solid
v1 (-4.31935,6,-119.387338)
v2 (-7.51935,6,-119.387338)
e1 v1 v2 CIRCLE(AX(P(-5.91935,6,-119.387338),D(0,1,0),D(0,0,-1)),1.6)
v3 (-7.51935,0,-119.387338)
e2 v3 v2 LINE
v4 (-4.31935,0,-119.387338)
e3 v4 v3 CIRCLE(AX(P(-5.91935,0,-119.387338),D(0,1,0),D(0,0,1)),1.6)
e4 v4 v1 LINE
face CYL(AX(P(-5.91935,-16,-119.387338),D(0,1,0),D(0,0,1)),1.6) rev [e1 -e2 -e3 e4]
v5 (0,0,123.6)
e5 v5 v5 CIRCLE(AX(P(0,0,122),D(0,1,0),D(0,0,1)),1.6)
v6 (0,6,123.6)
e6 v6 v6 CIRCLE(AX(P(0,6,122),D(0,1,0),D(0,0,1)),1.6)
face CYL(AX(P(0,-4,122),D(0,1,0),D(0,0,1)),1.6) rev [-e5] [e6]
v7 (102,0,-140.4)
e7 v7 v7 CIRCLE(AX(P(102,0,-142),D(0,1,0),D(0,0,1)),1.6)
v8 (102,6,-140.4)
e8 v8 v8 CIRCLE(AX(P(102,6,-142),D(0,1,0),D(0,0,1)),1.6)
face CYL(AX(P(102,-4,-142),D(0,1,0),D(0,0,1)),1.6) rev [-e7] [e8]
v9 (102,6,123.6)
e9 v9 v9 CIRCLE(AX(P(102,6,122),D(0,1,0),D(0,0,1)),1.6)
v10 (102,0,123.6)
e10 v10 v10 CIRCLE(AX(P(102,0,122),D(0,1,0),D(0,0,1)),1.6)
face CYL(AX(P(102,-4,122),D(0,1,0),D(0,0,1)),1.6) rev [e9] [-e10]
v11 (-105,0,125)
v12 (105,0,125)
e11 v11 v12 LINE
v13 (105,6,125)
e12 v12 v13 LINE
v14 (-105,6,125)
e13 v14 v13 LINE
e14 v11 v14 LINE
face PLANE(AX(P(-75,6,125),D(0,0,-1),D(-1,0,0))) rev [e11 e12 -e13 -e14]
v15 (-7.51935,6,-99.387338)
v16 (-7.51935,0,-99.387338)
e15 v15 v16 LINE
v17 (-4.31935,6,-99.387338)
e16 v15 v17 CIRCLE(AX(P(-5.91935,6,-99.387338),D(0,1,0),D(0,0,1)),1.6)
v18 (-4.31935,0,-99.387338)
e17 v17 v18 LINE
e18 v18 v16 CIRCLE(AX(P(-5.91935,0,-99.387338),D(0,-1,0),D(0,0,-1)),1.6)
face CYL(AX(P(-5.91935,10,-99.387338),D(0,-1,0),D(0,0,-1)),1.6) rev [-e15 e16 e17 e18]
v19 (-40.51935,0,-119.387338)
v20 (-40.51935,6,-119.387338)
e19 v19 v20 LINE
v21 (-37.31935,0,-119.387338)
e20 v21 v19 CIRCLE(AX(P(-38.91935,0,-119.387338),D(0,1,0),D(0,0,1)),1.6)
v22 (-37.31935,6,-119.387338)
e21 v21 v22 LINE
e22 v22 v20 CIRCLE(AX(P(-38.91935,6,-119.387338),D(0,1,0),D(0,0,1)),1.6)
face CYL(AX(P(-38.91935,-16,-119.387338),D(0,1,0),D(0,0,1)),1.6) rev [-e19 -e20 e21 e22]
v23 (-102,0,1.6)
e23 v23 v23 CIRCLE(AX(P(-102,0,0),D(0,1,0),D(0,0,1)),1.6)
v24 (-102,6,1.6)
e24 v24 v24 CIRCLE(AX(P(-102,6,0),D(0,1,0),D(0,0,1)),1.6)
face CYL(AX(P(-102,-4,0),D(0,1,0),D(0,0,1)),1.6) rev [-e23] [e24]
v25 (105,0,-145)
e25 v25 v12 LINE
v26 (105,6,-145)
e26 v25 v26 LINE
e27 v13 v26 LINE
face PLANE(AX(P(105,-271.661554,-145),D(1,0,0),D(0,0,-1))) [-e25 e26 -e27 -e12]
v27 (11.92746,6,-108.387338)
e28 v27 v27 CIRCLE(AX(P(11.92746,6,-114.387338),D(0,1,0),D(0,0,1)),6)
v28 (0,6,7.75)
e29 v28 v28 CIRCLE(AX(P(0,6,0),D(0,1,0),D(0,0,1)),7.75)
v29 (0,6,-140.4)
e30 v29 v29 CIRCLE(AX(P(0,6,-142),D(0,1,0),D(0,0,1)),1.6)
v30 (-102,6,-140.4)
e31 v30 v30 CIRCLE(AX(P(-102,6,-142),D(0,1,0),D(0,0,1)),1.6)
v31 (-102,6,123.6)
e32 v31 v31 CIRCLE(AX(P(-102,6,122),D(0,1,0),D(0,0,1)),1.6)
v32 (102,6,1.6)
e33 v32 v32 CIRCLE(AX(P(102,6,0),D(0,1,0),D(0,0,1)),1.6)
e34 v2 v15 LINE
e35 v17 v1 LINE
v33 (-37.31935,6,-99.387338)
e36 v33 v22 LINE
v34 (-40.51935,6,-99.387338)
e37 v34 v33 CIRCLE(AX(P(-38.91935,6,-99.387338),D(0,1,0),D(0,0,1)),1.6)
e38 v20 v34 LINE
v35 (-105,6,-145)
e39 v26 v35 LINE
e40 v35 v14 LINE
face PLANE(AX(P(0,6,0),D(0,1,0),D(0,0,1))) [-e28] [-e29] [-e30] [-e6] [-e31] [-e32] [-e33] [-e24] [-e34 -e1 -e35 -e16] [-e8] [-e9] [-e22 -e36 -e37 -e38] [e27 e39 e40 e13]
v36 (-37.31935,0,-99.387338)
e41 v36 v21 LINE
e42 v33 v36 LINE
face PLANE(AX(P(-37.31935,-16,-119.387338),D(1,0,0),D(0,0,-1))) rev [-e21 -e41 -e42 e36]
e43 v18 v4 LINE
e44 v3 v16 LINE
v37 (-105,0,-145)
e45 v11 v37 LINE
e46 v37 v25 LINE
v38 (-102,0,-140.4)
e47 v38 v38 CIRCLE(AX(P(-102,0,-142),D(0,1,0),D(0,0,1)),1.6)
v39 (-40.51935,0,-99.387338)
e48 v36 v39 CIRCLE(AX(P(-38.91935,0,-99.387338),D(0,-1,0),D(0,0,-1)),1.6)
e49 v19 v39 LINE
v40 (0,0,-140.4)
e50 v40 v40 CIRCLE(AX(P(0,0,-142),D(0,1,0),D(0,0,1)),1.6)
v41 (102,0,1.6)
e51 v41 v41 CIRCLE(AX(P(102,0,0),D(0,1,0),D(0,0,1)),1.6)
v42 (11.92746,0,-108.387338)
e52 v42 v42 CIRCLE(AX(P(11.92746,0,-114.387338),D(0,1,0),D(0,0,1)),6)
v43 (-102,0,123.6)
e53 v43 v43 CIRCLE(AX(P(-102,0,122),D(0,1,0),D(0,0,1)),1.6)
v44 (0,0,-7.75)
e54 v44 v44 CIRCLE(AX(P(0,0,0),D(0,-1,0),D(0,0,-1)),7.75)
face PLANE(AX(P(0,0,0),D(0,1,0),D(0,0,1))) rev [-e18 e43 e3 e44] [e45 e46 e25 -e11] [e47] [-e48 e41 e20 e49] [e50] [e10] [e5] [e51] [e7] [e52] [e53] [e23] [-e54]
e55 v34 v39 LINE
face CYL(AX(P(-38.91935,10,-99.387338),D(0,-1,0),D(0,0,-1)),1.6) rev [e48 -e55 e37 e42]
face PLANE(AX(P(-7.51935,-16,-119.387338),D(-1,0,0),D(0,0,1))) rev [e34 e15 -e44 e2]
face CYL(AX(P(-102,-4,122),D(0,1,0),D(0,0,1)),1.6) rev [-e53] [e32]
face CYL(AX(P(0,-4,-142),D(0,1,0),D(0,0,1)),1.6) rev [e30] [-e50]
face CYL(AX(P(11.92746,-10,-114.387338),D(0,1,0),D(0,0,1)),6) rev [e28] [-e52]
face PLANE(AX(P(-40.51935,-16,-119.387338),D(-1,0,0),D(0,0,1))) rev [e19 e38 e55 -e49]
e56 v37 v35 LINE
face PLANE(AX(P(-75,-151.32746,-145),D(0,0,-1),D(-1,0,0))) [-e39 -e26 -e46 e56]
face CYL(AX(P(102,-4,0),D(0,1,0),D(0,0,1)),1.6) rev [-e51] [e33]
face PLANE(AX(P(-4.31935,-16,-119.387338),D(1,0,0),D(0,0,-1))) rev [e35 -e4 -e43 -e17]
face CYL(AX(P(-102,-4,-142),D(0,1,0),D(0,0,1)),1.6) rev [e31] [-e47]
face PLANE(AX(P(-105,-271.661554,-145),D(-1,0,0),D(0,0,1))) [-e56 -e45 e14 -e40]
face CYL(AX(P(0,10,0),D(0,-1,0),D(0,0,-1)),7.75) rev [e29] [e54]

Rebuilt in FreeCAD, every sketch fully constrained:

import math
import FreeCAD as App
import Part
import Sketcher

doc = App.newDocument("Part")
body = doc.addObject("PartDesign::Body", "Body")

# Sketch on XZ plane
sketch1 = body.newObject("Sketcher::SketchObject", "Sketch")
sketch1.AttachmentSupport = (doc.getObject("XZ_Plane"), [""])
sketch1.MapMode = "FlatFace"
sketch1.addGeometry([
    Part.LineSegment(App.Vector(-75, -125, 0), App.Vector(-75, 125, 0)),  # 0
    Part.LineSegment(App.Vector(-75, 125, 0), App.Vector(75, 125, 0)),  # 1
    Part.LineSegment(App.Vector(75, 125, 0), App.Vector(75, -125, 0)),  # 2
    Part.LineSegment(App.Vector(75, -125, 0), App.Vector(-75, -125, 0)),  # 3
    Part.Circle(App.Vector(-9.9, 9.9, 0), App.Vector(0, 0, 1), 1.8),  # 4
    Part.Circle(App.Vector(9.9, 9.9, 0), App.Vector(0, 0, 1), 1.8),  # 5
    Part.Circle(App.Vector(-9.9, -9.9, 0), App.Vector(0, 0, 1), 1.8),  # 6
    Part.Circle(App.Vector(9.9, -9.9, 0), App.Vector(0, 0, 1), 1.8),  # 7
], False)
sketch1.addConstraint([
    Sketcher.Constraint("Coincident", 0, 2, 1, 1),
    Sketcher.Constraint("Coincident", 1, 2, 2, 1),
    Sketcher.Constraint("Coincident", 2, 2, 3, 1),
    Sketcher.Constraint("Coincident", 3, 2, 0, 1),
    Sketcher.Constraint("Vertical", 0),
    Sketcher.Constraint("Horizontal", 1),
    Sketcher.Constraint("Vertical", 2),
    Sketcher.Constraint("Horizontal", 3),
    Sketcher.Constraint("Equal", 4, 5),
    Sketcher.Constraint("Equal", 5, 6),
    Sketcher.Constraint("Equal", 6, 7),
    Sketcher.Constraint("Symmetric", 5, 3, 6, 3, -1, 1),
    Sketcher.Constraint("Symmetric", 4, 3, 7, 3, -1, 1),
    Sketcher.Constraint("Symmetric", 0, 2, 2, 2, -1, 1),
    Sketcher.Constraint("Symmetric", 4, 3, 5, 3, -2),
    Sketcher.Constraint("Diameter", 4, 3.5),
    Sketcher.Constraint("DistanceX", 1, 1, 1, 2, 150.0),
    Sketcher.Constraint("DistanceY", 0, 1, 0, 2, 250.0),
    Sketcher.Constraint("DistanceX", 4, 3, 5, 3, 19.79899),
    Sketcher.Constraint("DistanceY", 6, 3, 4, 3, 19.79899),
])
pad1 = body.newObject("PartDesign::Pad", "Pad")
pad1.Profile = sketch1
pad1.Length = 6
pad1.Reversed = True

# Sketch on XZ plane
sketch2 = body.newObject("Sketcher::SketchObject", "Sketch001")
sketch2.AttachmentSupport = (doc.getObject("XZ_Plane"), [""])
sketch2.MapMode = "FlatFace"
sketch2.AttachmentOffset = App.Placement(App.Vector(0, 0, -6), App.Rotation())
sketch2.addGeometry(Part.Circle(App.Vector(0, 0, 0), App.Vector(0, 0, 1), 11), False)
sketch2.addConstraint([
    Sketcher.Constraint("Coincident", 0, 3, -1, 1),
    Sketcher.Constraint("Diameter", 0, 22.5),
])
pocket1 = body.newObject("PartDesign::Pocket", "Pocket")
pocket1.Profile = sketch2
pocket1.Length = 6
pocket1.Reversed = True

# Sketch on XZ plane
sketch3 = body.newObject("Sketcher::SketchObject", "Sketch002")
sketch3.AttachmentSupport = (doc.getObject("XZ_Plane"), [""])
sketch3.MapMode = "FlatFace"
sketch3.AttachmentOffset = App.Placement(App.Vector(0, 0, -6), App.Rotation())
sketch3.addGeometry([
    Part.Circle(App.Vector(-9.9, -9.9, 0), App.Vector(0, 0, 1), 1.7),
    Part.Circle(App.Vector(9.9, -9.9, 0), App.Vector(0, 0, 1), 1.7),
    Part.Circle(App.Vector(-9.9, 9.9, 0), App.Vector(0, 0, 1), 1.7),
    Part.Circle(App.Vector(9.9, 9.9, 0), App.Vector(0, 0, 1), 1.7),
], False)
sketch3.addConstraint([
    Sketcher.Constraint("Equal", 0, 1),
    Sketcher.Constraint("Equal", 1, 2),
    Sketcher.Constraint("Equal", 2, 3),
    Sketcher.Constraint("Symmetric", 1, 3, 2, 3, -1, 1),
    Sketcher.Constraint("Symmetric", 0, 3, 3, 3, -1, 1),
    Sketcher.Constraint("Symmetric", 0, 3, 1, 3, -2),
    Sketcher.Constraint("Diameter", 0, 3.4),
    Sketcher.Constraint("DistanceX", 0, 3, 1, 3, 19.79899),
    Sketcher.Constraint("DistanceY", 0, 3, 2, 3, 19.79899),
])
doc.recompute()
hole = body.newObject("PartDesign::Hole", "Hole")
hole.Profile = sketch3
hole.ThreadType = "None"
hole.Diameter = 3.4
hole.DepthType = "ThroughAll"
hole.HoleCutType = "Countersink"
hole.HoleCutDiameter = 6.3
hole.HoleCutCountersinkAngle = 90
hole.Reversed = True

# Sketch on XZ plane
sketch4 = body.newObject("Sketcher::SketchObject", "Sketch003")
sketch4.AttachmentSupport = (doc.getObject("XZ_Plane"), [""])
sketch4.MapMode = "FlatFace"
sketch4.AttachmentOffset = App.Placement(App.Vector(0, 0, -6), App.Rotation())
sketch4.addGeometry([
    Part.LineSegment(App.Vector(-75, -145, 0), App.Vector(-75, -125, 0)),
    Part.LineSegment(App.Vector(-75, -125, 0), App.Vector(75, -125, 0)),
    Part.LineSegment(App.Vector(75, -125, 0), App.Vector(75, -145, 0)),
    Part.LineSegment(App.Vector(75, -145, 0), App.Vector(-75, -145, 0)),
], False)
sketch4.addConstraint([
    Sketcher.Constraint("Coincident", 0, 2, 1, 1),
    Sketcher.Constraint("Coincident", 1, 2, 2, 1),
    Sketcher.Constraint("Coincident", 2, 2, 3, 1),
    Sketcher.Constraint("Coincident", 3, 2, 0, 1),
    Sketcher.Constraint("Vertical", 0),
    Sketcher.Constraint("Horizontal", 1),
    Sketcher.Constraint("Vertical", 2),
    Sketcher.Constraint("Horizontal", 3),
    Sketcher.Constraint("DistanceX", 1, 1, 1, 2, 150.0),
    Sketcher.Constraint("DistanceY", 0, 1, 0, 2, 20.0),
    Sketcher.Constraint("DistanceX", 0, 2, -1, 1, 75.0),
    Sketcher.Constraint("DistanceY", 0, 2, -1, 1, 125.0),
])
pad2 = body.newObject("PartDesign::Pad", "Pad001")
pad2.Profile = sketch4
pad2.Length = 6

# Sketch on XZ plane
sketch5 = body.newObject("Sketcher::SketchObject", "Sketch004")
sketch5.AttachmentSupport = (doc.getObject("XZ_Plane"), [""])
sketch5.MapMode = "FlatFace"
sketch5.AttachmentOffset = App.Placement(App.Vector(0, 0, -6), App.Rotation())
sketch5.addGeometry([
    Part.LineSegment(App.Vector(-37.3, -109.4, 0), App.Vector(-37.3, -119.4, 0)),  # 0
    Part.ArcOfCircle(Part.Circle(App.Vector(-38.9, -119.4, 0), App.Vector(0, 0, 1), 1.6), math.radians(180), math.radians(360)),  # 1
    Part.LineSegment(App.Vector(-40.5, -119.4, 0), App.Vector(-40.5, -109.4, 0)),  # 2
    Part.ArcOfCircle(Part.Circle(App.Vector(-38.9, -109.4, 0), App.Vector(0, 0, 1), 1.6), math.radians(0), math.radians(180)),  # 3
    Part.LineSegment(App.Vector(-7.5, -119.4, 0), App.Vector(-7.5, -109.4, 0)),  # 4
    Part.ArcOfCircle(Part.Circle(App.Vector(-5.9, -109.4, 0), App.Vector(0, 0, 1), 1.6), math.radians(0), math.radians(180)),  # 5
    Part.LineSegment(App.Vector(-4.3, -109.4, 0), App.Vector(-4.3, -119.4, 0)),  # 6
    Part.ArcOfCircle(Part.Circle(App.Vector(-5.9, -119.4, 0), App.Vector(0, 0, 1), 1.6), math.radians(180), math.radians(360)),  # 7
], False)
sketch5.addConstraint([
    Sketcher.Constraint("Tangent", 0, 2, 1, 2),
    Sketcher.Constraint("Tangent", 1, 1, 2, 1),
    Sketcher.Constraint("Tangent", 2, 2, 3, 2),
    Sketcher.Constraint("Tangent", 3, 1, 0, 1),
    Sketcher.Constraint("Tangent", 4, 2, 5, 2),
    Sketcher.Constraint("Tangent", 5, 1, 6, 1),
    Sketcher.Constraint("Tangent", 6, 2, 7, 2),
    Sketcher.Constraint("Tangent", 7, 1, 4, 1),
    Sketcher.Constraint("Vertical", 0),
    Sketcher.Constraint("Vertical", 2),
    Sketcher.Constraint("Vertical", 4),
    Sketcher.Constraint("Vertical", 6),
    Sketcher.Constraint("Equal", 3, 5),
    Sketcher.Constraint("Horizontal", 3, 3, 5, 3),
    Sketcher.Constraint("Horizontal", 1, 3, 7, 3),
    Sketcher.Constraint("Radius", 1, 1.6),
    Sketcher.Constraint("DistanceY", 0, 2, 0, 1, 10.0),
    Sketcher.Constraint("DistanceX", 3, 3, 5, 3, 33.0),
    Sketcher.Constraint("DistanceX", 1, 3, -1, 1, 38.91935),
    Sketcher.Constraint("DistanceY", 1, 3, -1, 1, 119.387338),
])
pocket2 = body.newObject("PartDesign::Pocket", "Pocket001")
pocket2.Profile = sketch5
pocket2.Length = 22
pocket2.Reversed = True

# Sketch on XZ plane
sketch6 = body.newObject("Sketcher::SketchObject", "Sketch005")
sketch6.AttachmentSupport = (doc.getObject("XZ_Plane"), [""])
sketch6.MapMode = "FlatFace"
sketch6.AttachmentOffset = App.Placement(App.Vector(0, 0, -6), App.Rotation())
sketch6.addGeometry(Part.Circle(App.Vector(12, -114, 0), App.Vector(0, 0, 1), 6), False)
sketch6.addConstraint([
    Sketcher.Constraint("Diameter", 0, 12.0),
    Sketcher.Constraint("DistanceX", -1, 1, 0, 3, 11.92746),
    Sketcher.Constraint("DistanceY", 0, 3, -1, 1, 114.387338),
])
pocket3 = body.newObject("PartDesign::Pocket", "Pocket002")
pocket3.Profile = sketch6
pocket3.Length = 16
pocket3.Reversed = True

# Sketch on XZ plane
sketch7 = body.newObject("Sketcher::SketchObject", "Sketch006")
sketch7.AttachmentSupport = (doc.getObject("XZ_Plane"), [""])
sketch7.MapMode = "FlatFace"
sketch7.AttachmentOffset = App.Placement(App.Vector(0, 0, -6), App.Rotation())
sketch7.addGeometry([
    Part.LineSegment(App.Vector(-105, -145, 0), App.Vector(-105, 125, 0)),  # 0
    Part.LineSegment(App.Vector(-105, 125, 0), App.Vector(-75, 125, 0)),  # 1
    Part.LineSegment(App.Vector(-75, 125, 0), App.Vector(-75, -145, 0)),  # 2
    Part.LineSegment(App.Vector(-75, -145, 0), App.Vector(-105, -145, 0)),  # 3
    Part.LineSegment(App.Vector(75, -145, 0), App.Vector(75, 125, 0)),  # 4
    Part.LineSegment(App.Vector(75, 125, 0), App.Vector(105, 125, 0)),  # 5
    Part.LineSegment(App.Vector(105, 125, 0), App.Vector(105, -145, 0)),  # 6
    Part.LineSegment(App.Vector(105, -145, 0), App.Vector(75, -145, 0)),  # 7
], False)
sketch7.addConstraint([
    Sketcher.Constraint("Coincident", 0, 2, 1, 1),
    Sketcher.Constraint("Coincident", 1, 2, 2, 1),
    Sketcher.Constraint("Coincident", 2, 2, 3, 1),
    Sketcher.Constraint("Coincident", 3, 2, 0, 1),
    Sketcher.Constraint("Coincident", 4, 2, 5, 1),
    Sketcher.Constraint("Coincident", 5, 2, 6, 1),
    Sketcher.Constraint("Coincident", 6, 2, 7, 1),
    Sketcher.Constraint("Coincident", 7, 2, 4, 1),
    Sketcher.Constraint("Vertical", 0),
    Sketcher.Constraint("Horizontal", 1),
    Sketcher.Constraint("Vertical", 2),
    Sketcher.Constraint("Horizontal", 3),
    Sketcher.Constraint("Vertical", 4),
    Sketcher.Constraint("Horizontal", 5),
    Sketcher.Constraint("Vertical", 6),
    Sketcher.Constraint("Horizontal", 7),
    Sketcher.Constraint("Symmetric", 1, 2, 4, 2, -2),
    Sketcher.Constraint("Symmetric", 3, 2, 6, 2, -2),
    Sketcher.Constraint("DistanceX", 1, 1, 1, 2, 30.0),
    Sketcher.Constraint("DistanceY", 0, 1, 0, 2, 270.0),
    Sketcher.Constraint("DistanceX", 0, 2, -1, 1, 105.0),
    Sketcher.Constraint("DistanceY", -1, 1, 0, 2, 125.0),
])
pad3 = body.newObject("PartDesign::Pad", "Pad002")
pad3.Profile = sketch7
pad3.Length = 6

# Sketch on XZ plane
sketch8 = body.newObject("Sketcher::SketchObject", "Sketch007")
sketch8.AttachmentSupport = (doc.getObject("XZ_Plane"), [""])
sketch8.MapMode = "FlatFace"
sketch8.AttachmentOffset = App.Placement(App.Vector(0, 0, -6), App.Rotation())
sketch8.addGeometry([
    Part.Circle(App.Vector(-102, -142, 0), App.Vector(0, 0, 1), 1.6),  # 0
    Part.Circle(App.Vector(0, -142, 0), App.Vector(0, 0, 1), 1.6),  # 1
    Part.Circle(App.Vector(102, -142, 0), App.Vector(0, 0, 1), 1.6),  # 2
    Part.Circle(App.Vector(-102, 0, 0), App.Vector(0, 0, 1), 1.6),  # 3
    Part.Circle(App.Vector(102, 0, 0), App.Vector(0, 0, 1), 1.6),  # 4
    Part.Circle(App.Vector(-102, 122, 0), App.Vector(0, 0, 1), 1.6),  # 5
    Part.Circle(App.Vector(102, 122, 0), App.Vector(0, 0, 1), 1.6),  # 6
    Part.Circle(App.Vector(0, 122, 0), App.Vector(0, 0, 1), 1.6),  # 7
], False)
sketch8.addConstraint([
    Sketcher.Constraint("Equal", 0, 1),
    Sketcher.Constraint("Equal", 1, 2),
    Sketcher.Constraint("Equal", 2, 3),
    Sketcher.Constraint("Equal", 3, 4),
    Sketcher.Constraint("Equal", 4, 5),
    Sketcher.Constraint("Equal", 5, 6),
    Sketcher.Constraint("Equal", 6, 7),
    Sketcher.Constraint("Symmetric", 3, 3, 4, 3, -1, 1),
    Sketcher.Constraint("Symmetric", 0, 3, 2, 3, -2),
    Sketcher.Constraint("Symmetric", 5, 3, 6, 3, -2),
    Sketcher.Constraint("PointOnObject", 1, 3, -2),
    Sketcher.Constraint("PointOnObject", 3, 3, -1),
    Sketcher.Constraint("PointOnObject", 7, 3, -2),
    Sketcher.Constraint("Horizontal", 0, 3, 1, 3),
    Sketcher.Constraint("Horizontal", 6, 3, 7, 3),
    Sketcher.Constraint("Vertical", 0, 3, 3, 3),
    Sketcher.Constraint("Vertical", 3, 3, 5, 3),
    Sketcher.Constraint("Diameter", 0, 3.2),
    Sketcher.Constraint("DistanceX", 0, 3, -1, 1, 102.0),
    Sketcher.Constraint("DistanceY", 0, 3, -1, 1, 142.0),
    Sketcher.Constraint("DistanceY", -1, 1, 5, 3, 122.0),
])
pocket4 = body.newObject("PartDesign::Pocket", "Pocket003")
pocket4.Profile = sketch8
pocket4.Length = 10
pocket4.Reversed = True

# Sketch on XZ plane
sketch9 = body.newObject("Sketcher::SketchObject", "Sketch008")
sketch9.AttachmentSupport = (doc.getObject("XZ_Plane"), [""])
sketch9.MapMode = "FlatFace"
sketch9.AttachmentOffset = App.Placement(App.Vector(0, 0, -6), App.Rotation())
sketch9.addGeometry([
    Part.Circle(App.Vector(-15.5, -15.5, 0), App.Vector(0, 0, 1), 1.6),
    Part.Circle(App.Vector(-15.5, 15.5, 0), App.Vector(0, 0, 1), 1.6),
    Part.Circle(App.Vector(15.5, -15.5, 0), App.Vector(0, 0, 1), 1.6),
    Part.Circle(App.Vector(15.5, 15.5, 0), App.Vector(0, 0, 1), 1.6),
], False)
sketch9.addConstraint([
    Sketcher.Constraint("Equal", 0, 1),
    Sketcher.Constraint("Equal", 1, 2),
    Sketcher.Constraint("Equal", 2, 3),
    Sketcher.Constraint("Symmetric", 1, 3, 2, 3, -1, 1),
    Sketcher.Constraint("Symmetric", 0, 3, 3, 3, -1, 1),
    Sketcher.Constraint("Symmetric", 0, 3, 2, 3, -2),
    Sketcher.Constraint("Diameter", 0, 3.2),
    Sketcher.Constraint("DistanceY", 0, 3, 1, 3, 31.0),
    Sketcher.Constraint("DistanceX", 0, 3, 2, 3, 31.0),
])
pocket5 = body.newObject("PartDesign::Pocket", "Pocket004")
pocket5.Profile = sketch9
pocket5.Length = 10
pocket5.Reversed = True

# Sketch on XZ plane
sketch10 = body.newObject("Sketcher::SketchObject", "Sketch009")
sketch10.AttachmentSupport = (doc.getObject("XZ_Plane"), [""])
sketch10.MapMode = "FlatFace"
sketch10.AttachmentOffset = App.Placement(App.Vector(0, 0, -6), App.Rotation())
sketch10.addGeometry([
    Part.Circle(App.Vector(-15.5, -15.5, 0), App.Vector(0, 0, 1), 1.9),
    Part.Circle(App.Vector(-15.5, 15.5, 0), App.Vector(0, 0, 1), 1.9),
    Part.Circle(App.Vector(15.5, 15.5, 0), App.Vector(0, 0, 1), 1.9),
    Part.Circle(App.Vector(15.5, -15.5, 0), App.Vector(0, 0, 1), 1.9),
], False)
sketch10.addConstraint([
    Sketcher.Constraint("Equal", 0, 1),
    Sketcher.Constraint("Equal", 1, 2),
    Sketcher.Constraint("Equal", 2, 3),
    Sketcher.Constraint("Symmetric", 0, 3, 2, 3, -1, 1),
    Sketcher.Constraint("Symmetric", 1, 3, 3, 3, -1, 1),
    Sketcher.Constraint("Symmetric", 1, 3, 2, 3, -2),
    Sketcher.Constraint("Diameter", 0, 3.7),
    Sketcher.Constraint("DistanceY", 0, 3, 1, 3, 31.0),
    Sketcher.Constraint("DistanceX", 1, 3, 2, 3, 31.0),
])
doc.recompute()
hole2 = body.newObject("PartDesign::Hole", "Hole001")
hole2.Profile = sketch10
hole2.ThreadType = "None"
hole2.Diameter = 3.7
hole2.DepthType = "Dimension"
hole2.Depth = 6
hole2.DrillPoint = "Angled"
hole2.DrillPointAngle = 118
hole2.HoleCutType = "Countersink"
hole2.HoleCutDiameter = 8.2
hole2.HoleCutCountersinkAngle = 90
hole2.Reversed = True

# Sketch on XZ plane
sketch11 = body.newObject("Sketcher::SketchObject", "Sketch010")
sketch11.AttachmentSupport = (doc.getObject("XZ_Plane"), [""])
sketch11.MapMode = "FlatFace"
sketch11.addGeometry([
    Part.LineSegment(App.Vector(-25, 29, 0), App.Vector(-25, -29, 0)),
    Part.LineSegment(App.Vector(-25, -29, 0), App.Vector(25, -29, 0)),
    Part.LineSegment(App.Vector(25, -29, 0), App.Vector(25, 29, 0)),
    Part.LineSegment(App.Vector(25, 29, 0), App.Vector(-25, 29, 0)),
], False)
sketch11.addConstraint([
    Sketcher.Constraint("Coincident", 0, 2, 1, 1),
    Sketcher.Constraint("Coincident", 1, 2, 2, 1),
    Sketcher.Constraint("Coincident", 2, 2, 3, 1),
    Sketcher.Constraint("Coincident", 3, 2, 0, 1),
    Sketcher.Constraint("Vertical", 0),
    Sketcher.Constraint("Horizontal", 1),
    Sketcher.Constraint("Vertical", 2),
    Sketcher.Constraint("Horizontal", 3),
    Sketcher.Constraint("Symmetric", 0, 2, 2, 2, -1, 1),
    Sketcher.Constraint("DistanceX", 1, 1, 1, 2, 49.124995),
    Sketcher.Constraint("DistanceY", 0, 2, 0, 1, 58.099416),
])
pad4 = body.newObject("PartDesign::Pad", "Pad003")
pad4.Profile = sketch11
pad4.Length = 6
pad4.Reversed = True

# Sketch on XZ plane
sketch12 = body.newObject("Sketcher::SketchObject", "Sketch011")
sketch12.AttachmentSupport = (doc.getObject("XZ_Plane"), [""])
sketch12.MapMode = "FlatFace"
sketch12.addGeometry(Part.Circle(App.Vector(0, 0, 0), App.Vector(0, 0, 1), 8), False)
sketch12.addConstraint([
    Sketcher.Constraint("Coincident", 0, 3, -1, 1),
    Sketcher.Constraint("Diameter", 0, 15.5),
])
pocket6 = body.newObject("PartDesign::Pocket", "Pocket005")
pocket6.Profile = sketch12
pocket6.Length = 10

# Sketch on XZ plane
sketch13 = body.newObject("Sketcher::SketchObject", "Sketch012")
sketch13.AttachmentSupport = (doc.getObject("XZ_Plane"), [""])
sketch13.MapMode = "FlatFace"
sketch13.AttachmentOffset = App.Placement(App.Vector(0, 0, -10), App.Rotation())
sketch13.addGeometry([
    Part.LineSegment(App.Vector(-40.5, -99.4, 0), App.Vector(-40.5, -119.4, 0)),  # 0
    Part.ArcOfCircle(Part.Circle(App.Vector(-38.9, -119.4, 0), App.Vector(0, 0, 1), 1.6), math.radians(180), math.radians(360)),  # 1
    Part.LineSegment(App.Vector(-37.3, -119.4, 0), App.Vector(-37.3, -99.4, 0)),  # 2
    Part.ArcOfCircle(Part.Circle(App.Vector(-38.9, -99.4, 0), App.Vector(0, 0, 1), 1.6), math.radians(0), math.radians(180)),  # 3
    Part.LineSegment(App.Vector(-7.5, -99.4, 0), App.Vector(-7.5, -119.4, 0)),  # 4
    Part.ArcOfCircle(Part.Circle(App.Vector(-5.9, -119.4, 0), App.Vector(0, 0, 1), 1.6), math.radians(180), math.radians(360)),  # 5
    Part.LineSegment(App.Vector(-4.3, -119.4, 0), App.Vector(-4.3, -99.4, 0)),  # 6
    Part.ArcOfCircle(Part.Circle(App.Vector(-5.9, -99.4, 0), App.Vector(0, 0, 1), 1.6), math.radians(0), math.radians(180)),  # 7
], False)
sketch13.addConstraint([
    Sketcher.Constraint("Tangent", 0, 2, 1, 1),
    Sketcher.Constraint("Tangent", 1, 2, 2, 1),
    Sketcher.Constraint("Tangent", 2, 2, 3, 1),
    Sketcher.Constraint("Tangent", 3, 2, 0, 1),
    Sketcher.Constraint("Tangent", 4, 2, 5, 1),
    Sketcher.Constraint("Tangent", 5, 2, 6, 1),
    Sketcher.Constraint("Tangent", 6, 2, 7, 1),
    Sketcher.Constraint("Tangent", 7, 2, 4, 1),
    Sketcher.Constraint("Vertical", 0),
    Sketcher.Constraint("Vertical", 2),
    Sketcher.Constraint("Vertical", 4),
    Sketcher.Constraint("Vertical", 6),
    Sketcher.Constraint("Equal", 3, 5),
    Sketcher.Constraint("Horizontal", 1, 3, 5, 3),
    Sketcher.Constraint("Horizontal", 3, 3, 7, 3),
    Sketcher.Constraint("Radius", 1, 1.6),
    Sketcher.Constraint("DistanceY", 0, 2, 0, 1, 20.0),
    Sketcher.Constraint("DistanceX", 1, 3, 5, 3, 33.0),
    Sketcher.Constraint("DistanceX", 1, 3, -1, 1, 38.91935),
    Sketcher.Constraint("DistanceY", 1, 3, -1, 1, 119.387338),
])
pocket7 = body.newObject("PartDesign::Pocket", "Pocket006")
pocket7.Profile = sketch13
pocket7.Length = 10
pocket7.Reversed = True

doc.recompute()
